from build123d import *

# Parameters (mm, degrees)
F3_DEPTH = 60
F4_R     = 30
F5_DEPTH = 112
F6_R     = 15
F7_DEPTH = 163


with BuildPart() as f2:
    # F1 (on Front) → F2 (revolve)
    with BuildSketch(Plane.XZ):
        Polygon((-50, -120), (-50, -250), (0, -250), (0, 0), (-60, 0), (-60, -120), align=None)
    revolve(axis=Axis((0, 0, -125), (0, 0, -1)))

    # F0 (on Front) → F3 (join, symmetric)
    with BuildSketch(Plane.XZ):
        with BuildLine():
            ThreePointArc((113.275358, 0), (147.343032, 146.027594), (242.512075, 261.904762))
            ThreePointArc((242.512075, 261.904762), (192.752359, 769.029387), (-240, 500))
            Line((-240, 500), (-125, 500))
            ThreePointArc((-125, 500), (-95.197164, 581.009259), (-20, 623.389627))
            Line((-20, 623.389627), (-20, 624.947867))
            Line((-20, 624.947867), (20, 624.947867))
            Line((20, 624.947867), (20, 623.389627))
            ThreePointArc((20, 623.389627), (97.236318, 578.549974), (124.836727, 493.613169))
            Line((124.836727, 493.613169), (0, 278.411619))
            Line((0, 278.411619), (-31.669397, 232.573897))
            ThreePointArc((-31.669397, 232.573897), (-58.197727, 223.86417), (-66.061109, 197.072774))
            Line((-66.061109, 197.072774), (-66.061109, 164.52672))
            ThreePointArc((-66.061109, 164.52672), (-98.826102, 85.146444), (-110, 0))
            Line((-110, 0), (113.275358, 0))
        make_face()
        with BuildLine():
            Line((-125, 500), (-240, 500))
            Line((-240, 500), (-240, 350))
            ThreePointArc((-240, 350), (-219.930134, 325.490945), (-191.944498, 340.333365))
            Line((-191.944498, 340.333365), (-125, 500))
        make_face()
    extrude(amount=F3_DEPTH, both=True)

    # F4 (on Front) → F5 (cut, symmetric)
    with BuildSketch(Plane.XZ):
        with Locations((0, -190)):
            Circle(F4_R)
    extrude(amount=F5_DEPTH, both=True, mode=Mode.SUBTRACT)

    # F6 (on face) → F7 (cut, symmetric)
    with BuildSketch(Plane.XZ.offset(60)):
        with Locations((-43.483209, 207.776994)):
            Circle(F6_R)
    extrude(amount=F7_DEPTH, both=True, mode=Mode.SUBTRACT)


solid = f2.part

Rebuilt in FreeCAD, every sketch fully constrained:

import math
import FreeCAD as App
import Part
import Sketcher
from FreeCAD import Vector

doc = App.newDocument("Part")
body = doc.addObject("PartDesign::Body", "Body")

# Sketch on XZ plane
sketch1 = body.newObject("Sketcher::SketchObject", "Sketch")
sketch1.AttachmentSupport = (doc.getObject("XZ_Plane"), [""])
sketch1.MapMode = "FlatFace"
sketch1.addGeometry([
    Part.LineSegment(Vector(-50, -120, 0), Vector(-50, -250, 0)),  # 0
    Part.LineSegment(Vector(-50, -250, 0), Vector(0, -250, 0)),  # 1
    Part.LineSegment(Vector(0, -250, 0), Vector(0, 0, 0)),  # 2
    Part.LineSegment(Vector(0, 0, 0), Vector(-60, 0, 0)),  # 3
    Part.LineSegment(Vector(-60, 0, 0), Vector(-60, -120, 0)),  # 4
    Part.LineSegment(Vector(-60, -120, 0), Vector(-50, -120, 0)),  # 5
], False)
sketch1.addConstraint([
    Sketcher.Constraint("Coincident", 0, 2, 1, 1),
    Sketcher.Constraint("Coincident", 1, 2, 2, 1),
    Sketcher.Constraint("Coincident", 2, 2, 3, 1),
    Sketcher.Constraint("Coincident", 3, 2, 4, 1),
    Sketcher.Constraint("Coincident", 4, 2, 5, 1),
    Sketcher.Constraint("Coincident", 5, 2, 0, 1),
    Sketcher.Constraint("Vertical", 0),
    Sketcher.Constraint("Horizontal", 1),
    Sketcher.Constraint("Vertical", 2),
    Sketcher.Constraint("Horizontal", 3),
    Sketcher.Constraint("Vertical", 4),
    Sketcher.Constraint("Horizontal", 5),
    Sketcher.Constraint("Coincident", 2, 2, -1, 1),
    Sketcher.Constraint("DistanceX", 1, 1, 1, 2, 50.0),
    Sketcher.Constraint("DistanceX", 3, 2, 3, 1, 60.0),
    Sketcher.Constraint("DistanceY", 0, 2, 0, 1, 130.0),
    Sketcher.Constraint("DistanceY", 2, 1, 2, 2, 250.0),
])
revolution = body.newObject("PartDesign::Revolution", "Revolution")
revolution.Profile = sketch1
revolution.ReferenceAxis = (sketch1, ["V_Axis"])
revolution.Angle = 360

# Sketch on XZ plane
sketch2 = body.newObject("Sketcher::SketchObject", "Sketch001")
sketch2.AttachmentSupport = (doc.getObject("XZ_Plane"), [""])
sketch2.MapMode = "FlatFace"
sketch2.addGeometry([
    Part.ArcOfCircle(Part.Circle(Vector(443.3, 0, 0), Vector(0, 0, 1), 330), math.radians(127), math.radians(180)),  # 0
    Part.ArcOfCircle(Part.Circle(Vector(60, 500, 0), Vector(0, 0, 1), 300), math.radians(-53), math.radians(180)),  # 1
    Part.LineSegment(Vector(-240, 500, 0), Vector(-240, 350, 0)),  # 2
    Part.ArcOfCircle(Part.Circle(Vector(-215, 350, 0), Vector(0, 0, 1), 25), math.radians(-180), math.radians(-23)),  # 3
    Part.LineSegment(Vector(-191.9, 340.3, 0), Vector(-125, 500, 0)),  # 4
    Part.ArcOfCircle(Part.Circle(Vector(0, 500, 0), Vector(0, 0, 1), 125), math.radians(99), math.radians(180)),  # 5
    Part.LineSegment(Vector(-20, 623.4, 0), Vector(-20, 624.9, 0)),  # 6
    Part.LineSegment(Vector(-20, 624.9, 0), Vector(20, 624.9, 0)),  # 7
    Part.LineSegment(Vector(20, 624.9, 0), Vector(20, 623.4, 0)),  # 8
    Part.ArcOfCircle(Part.Circle(Vector(0, 500, 0), Vector(0, 0, 1), 125), math.radians(-3), math.radians(81)),  # 9
    Part.LineSegment(Vector(124.8, 493.6, 0), Vector(0, 278.4, 0)),  # 10
    Part.LineSegment(Vector(0, 278.4, 0), Vector(-31.7, 232.6, 0)),  # 11
    Part.ArcOfCircle(Part.Circle(Vector(-36.7, 203, 0), Vector(0, 0, 1), 30), math.radians(80), math.radians(191)),  # 12
    Part.LineSegment(Vector(-66.1, 197.1, 0), Vector(-66.1, 164.5, 0)),  # 13
    Part.ArcOfCircle(Part.Circle(Vector(220, 0, 0), Vector(0, 0, 1), 330), math.radians(150), math.radians(180)),  # 14
    Part.LineSegment(Vector(-110, 0, 0), Vector(113.3, 0, 0)),  # 15
], False)
sketch2.addConstraint([
    Sketcher.Constraint("Tangent", 0, 1, 1, 1),
    Sketcher.Constraint("Tangent", 1, 2, 2, 1),
    Sketcher.Constraint("Tangent", 2, 2, 3, 1),
    Sketcher.Constraint("Tangent", 3, 2, 4, 1),
    Sketcher.Constraint("Coincident", 4, 2, 5, 2),
    Sketcher.Constraint("Coincident", 5, 1, 6, 1),
    Sketcher.Constraint("Coincident", 6, 2, 7, 1),
    Sketcher.Constraint("Coincident", 7, 2, 8, 1),
    Sketcher.Constraint("Coincident", 8, 2, 9, 2),
    Sketcher.Constraint("Coincident", 9, 1, 10, 1),
    Sketcher.Constraint("Coincident", 10, 2, 11, 1),
    Sketcher.Constraint("Coincident", 11, 2, 12, 1),
    Sketcher.Constraint("Coincident", 12, 2, 13, 1),
    Sketcher.Constraint("Coincident", 13, 2, 14, 1),
    Sketcher.Constraint("Coincident", 14, 2, 15, 1),
    Sketcher.Constraint("Coincident", 15, 2, 0, 2),
    Sketcher.Constraint("Vertical", 2),
    Sketcher.Constraint("Vertical", 6),
    Sketcher.Constraint("Horizontal", 7),
    Sketcher.Constraint("Vertical", 8),
    Sketcher.Constraint("Vertical", 13),
    Sketcher.Constraint("Horizontal", 15),
    Sketcher.Constraint("Coincident", 9, 3, 5, 3),
    Sketcher.Constraint("Equal", 5, 9),
    Sketcher.Constraint("Symmetric", 5, 1, 8, 2, -2),
    Sketcher.Constraint("PointOnObject", 0, 3, -1),
    Sketcher.Constraint("PointOnObject", 10, 2, -2),
    Sketcher.Constraint("PointOnObject", 14, 2, -1),
    Sketcher.Constraint("Horizontal", 1, 3, 5, 3),
    Sketcher.Constraint("Horizontal", 1, 2, 4, 2),
    Sketcher.Constraint("Radius", 1, 300.0),
    Sketcher.Constraint("Radius", 3, 25.0),
    Sketcher.Constraint("Radius", 5, 124.999999),
    Sketcher.Constraint("Radius", 12, 30.0),
    Sketcher.Constraint("DistanceX", 7, 1, 7, 2, 40.0),
    Sketcher.Constraint("DistanceY", 2, 2, 2, 1, 150.0),
    Sketcher.Constraint("DistanceX", -1, 1, 1, 3, 60.0),
    Sketcher.Constraint("DistanceY", -1, 1, 1, 3, 500.0),
    Sketcher.Constraint("DistanceX", 14, 2, -1, 1, 110.0),
    Sketcher.Constraint("Radius", 0, 330.000004),
    Sketcher.Constraint("Radius", 14, 329.999982),
    Sketcher.Constraint("DistanceY", 6, 1, 6, 2, 1.55824),
    Sketcher.Constraint("DistanceY", 9, 1, 7, 2, 131.334698),
    Sketcher.Constraint("DistanceX", 3, 2, 11, 2, 160.275101),
    Sketcher.Constraint("DistanceY", 13, 2, 10, 2, 113.884899),
    Sketcher.Constraint("Distance", 11, 55.713979),
    Sketcher.Constraint("DistanceY", 13, 2, 13, 1, 32.546054),
    Sketcher.Constraint("DistanceX", 12, 3, -1, 1, 36.65052),
    Sketcher.Constraint("DistanceY", -1, 1, 10, 2, 278.411619),
])
pad1 = body.newObject("PartDesign::Pad", "Pad")
pad1.Profile = sketch2
pad1.Length = 120
pad1.Midplane = True

# Sketch on XZ plane
sketch3 = body.newObject("Sketcher::SketchObject", "Sketch002")
sketch3.AttachmentSupport = (doc.getObject("XZ_Plane"), [""])
sketch3.MapMode = "FlatFace"
sketch3.addGeometry(Part.Circle(Vector(0, -190, 0), Vector(0, 0, 1), 30), False)
sketch3.addConstraint([
    Sketcher.Constraint("PointOnObject", 0, 3, -2),
    Sketcher.Constraint("Diameter", 0, 60.0),
    Sketcher.Constraint("DistanceY", 0, 3, -1, 1, 190.0),
])
pocket1 = body.newObject("PartDesign::Pocket", "Pocket")
pocket1.Profile = sketch3
pocket1.Length = 224
pocket1.Midplane = True

# Sketch on XZ plane
sketch4 = body.newObject("Sketcher::SketchObject", "Sketch003")
sketch4.AttachmentSupport = (doc.getObject("XZ_Plane"), [""])
sketch4.MapMode = "FlatFace"
sketch4.AttachmentOffset = App.Placement(Vector(0, 0, 60), App.Rotation())
sketch4.addGeometry(Part.Circle(Vector(-43, 208, 0), Vector(0, 0, 1), 15), False)
sketch4.addConstraint([
    Sketcher.Constraint("Diameter", 0, 30.0),
    Sketcher.Constraint("DistanceX", 0, 3, -1, 1, 43.483209),
    Sketcher.Constraint("DistanceY", -1, 1, 0, 3, 207.776994),
])
pocket2 = body.newObject("PartDesign::Pocket", "Pocket001")
pocket2.Profile = sketch4
pocket2.Length = 326
pocket2.Midplane = True

doc.recompute()
